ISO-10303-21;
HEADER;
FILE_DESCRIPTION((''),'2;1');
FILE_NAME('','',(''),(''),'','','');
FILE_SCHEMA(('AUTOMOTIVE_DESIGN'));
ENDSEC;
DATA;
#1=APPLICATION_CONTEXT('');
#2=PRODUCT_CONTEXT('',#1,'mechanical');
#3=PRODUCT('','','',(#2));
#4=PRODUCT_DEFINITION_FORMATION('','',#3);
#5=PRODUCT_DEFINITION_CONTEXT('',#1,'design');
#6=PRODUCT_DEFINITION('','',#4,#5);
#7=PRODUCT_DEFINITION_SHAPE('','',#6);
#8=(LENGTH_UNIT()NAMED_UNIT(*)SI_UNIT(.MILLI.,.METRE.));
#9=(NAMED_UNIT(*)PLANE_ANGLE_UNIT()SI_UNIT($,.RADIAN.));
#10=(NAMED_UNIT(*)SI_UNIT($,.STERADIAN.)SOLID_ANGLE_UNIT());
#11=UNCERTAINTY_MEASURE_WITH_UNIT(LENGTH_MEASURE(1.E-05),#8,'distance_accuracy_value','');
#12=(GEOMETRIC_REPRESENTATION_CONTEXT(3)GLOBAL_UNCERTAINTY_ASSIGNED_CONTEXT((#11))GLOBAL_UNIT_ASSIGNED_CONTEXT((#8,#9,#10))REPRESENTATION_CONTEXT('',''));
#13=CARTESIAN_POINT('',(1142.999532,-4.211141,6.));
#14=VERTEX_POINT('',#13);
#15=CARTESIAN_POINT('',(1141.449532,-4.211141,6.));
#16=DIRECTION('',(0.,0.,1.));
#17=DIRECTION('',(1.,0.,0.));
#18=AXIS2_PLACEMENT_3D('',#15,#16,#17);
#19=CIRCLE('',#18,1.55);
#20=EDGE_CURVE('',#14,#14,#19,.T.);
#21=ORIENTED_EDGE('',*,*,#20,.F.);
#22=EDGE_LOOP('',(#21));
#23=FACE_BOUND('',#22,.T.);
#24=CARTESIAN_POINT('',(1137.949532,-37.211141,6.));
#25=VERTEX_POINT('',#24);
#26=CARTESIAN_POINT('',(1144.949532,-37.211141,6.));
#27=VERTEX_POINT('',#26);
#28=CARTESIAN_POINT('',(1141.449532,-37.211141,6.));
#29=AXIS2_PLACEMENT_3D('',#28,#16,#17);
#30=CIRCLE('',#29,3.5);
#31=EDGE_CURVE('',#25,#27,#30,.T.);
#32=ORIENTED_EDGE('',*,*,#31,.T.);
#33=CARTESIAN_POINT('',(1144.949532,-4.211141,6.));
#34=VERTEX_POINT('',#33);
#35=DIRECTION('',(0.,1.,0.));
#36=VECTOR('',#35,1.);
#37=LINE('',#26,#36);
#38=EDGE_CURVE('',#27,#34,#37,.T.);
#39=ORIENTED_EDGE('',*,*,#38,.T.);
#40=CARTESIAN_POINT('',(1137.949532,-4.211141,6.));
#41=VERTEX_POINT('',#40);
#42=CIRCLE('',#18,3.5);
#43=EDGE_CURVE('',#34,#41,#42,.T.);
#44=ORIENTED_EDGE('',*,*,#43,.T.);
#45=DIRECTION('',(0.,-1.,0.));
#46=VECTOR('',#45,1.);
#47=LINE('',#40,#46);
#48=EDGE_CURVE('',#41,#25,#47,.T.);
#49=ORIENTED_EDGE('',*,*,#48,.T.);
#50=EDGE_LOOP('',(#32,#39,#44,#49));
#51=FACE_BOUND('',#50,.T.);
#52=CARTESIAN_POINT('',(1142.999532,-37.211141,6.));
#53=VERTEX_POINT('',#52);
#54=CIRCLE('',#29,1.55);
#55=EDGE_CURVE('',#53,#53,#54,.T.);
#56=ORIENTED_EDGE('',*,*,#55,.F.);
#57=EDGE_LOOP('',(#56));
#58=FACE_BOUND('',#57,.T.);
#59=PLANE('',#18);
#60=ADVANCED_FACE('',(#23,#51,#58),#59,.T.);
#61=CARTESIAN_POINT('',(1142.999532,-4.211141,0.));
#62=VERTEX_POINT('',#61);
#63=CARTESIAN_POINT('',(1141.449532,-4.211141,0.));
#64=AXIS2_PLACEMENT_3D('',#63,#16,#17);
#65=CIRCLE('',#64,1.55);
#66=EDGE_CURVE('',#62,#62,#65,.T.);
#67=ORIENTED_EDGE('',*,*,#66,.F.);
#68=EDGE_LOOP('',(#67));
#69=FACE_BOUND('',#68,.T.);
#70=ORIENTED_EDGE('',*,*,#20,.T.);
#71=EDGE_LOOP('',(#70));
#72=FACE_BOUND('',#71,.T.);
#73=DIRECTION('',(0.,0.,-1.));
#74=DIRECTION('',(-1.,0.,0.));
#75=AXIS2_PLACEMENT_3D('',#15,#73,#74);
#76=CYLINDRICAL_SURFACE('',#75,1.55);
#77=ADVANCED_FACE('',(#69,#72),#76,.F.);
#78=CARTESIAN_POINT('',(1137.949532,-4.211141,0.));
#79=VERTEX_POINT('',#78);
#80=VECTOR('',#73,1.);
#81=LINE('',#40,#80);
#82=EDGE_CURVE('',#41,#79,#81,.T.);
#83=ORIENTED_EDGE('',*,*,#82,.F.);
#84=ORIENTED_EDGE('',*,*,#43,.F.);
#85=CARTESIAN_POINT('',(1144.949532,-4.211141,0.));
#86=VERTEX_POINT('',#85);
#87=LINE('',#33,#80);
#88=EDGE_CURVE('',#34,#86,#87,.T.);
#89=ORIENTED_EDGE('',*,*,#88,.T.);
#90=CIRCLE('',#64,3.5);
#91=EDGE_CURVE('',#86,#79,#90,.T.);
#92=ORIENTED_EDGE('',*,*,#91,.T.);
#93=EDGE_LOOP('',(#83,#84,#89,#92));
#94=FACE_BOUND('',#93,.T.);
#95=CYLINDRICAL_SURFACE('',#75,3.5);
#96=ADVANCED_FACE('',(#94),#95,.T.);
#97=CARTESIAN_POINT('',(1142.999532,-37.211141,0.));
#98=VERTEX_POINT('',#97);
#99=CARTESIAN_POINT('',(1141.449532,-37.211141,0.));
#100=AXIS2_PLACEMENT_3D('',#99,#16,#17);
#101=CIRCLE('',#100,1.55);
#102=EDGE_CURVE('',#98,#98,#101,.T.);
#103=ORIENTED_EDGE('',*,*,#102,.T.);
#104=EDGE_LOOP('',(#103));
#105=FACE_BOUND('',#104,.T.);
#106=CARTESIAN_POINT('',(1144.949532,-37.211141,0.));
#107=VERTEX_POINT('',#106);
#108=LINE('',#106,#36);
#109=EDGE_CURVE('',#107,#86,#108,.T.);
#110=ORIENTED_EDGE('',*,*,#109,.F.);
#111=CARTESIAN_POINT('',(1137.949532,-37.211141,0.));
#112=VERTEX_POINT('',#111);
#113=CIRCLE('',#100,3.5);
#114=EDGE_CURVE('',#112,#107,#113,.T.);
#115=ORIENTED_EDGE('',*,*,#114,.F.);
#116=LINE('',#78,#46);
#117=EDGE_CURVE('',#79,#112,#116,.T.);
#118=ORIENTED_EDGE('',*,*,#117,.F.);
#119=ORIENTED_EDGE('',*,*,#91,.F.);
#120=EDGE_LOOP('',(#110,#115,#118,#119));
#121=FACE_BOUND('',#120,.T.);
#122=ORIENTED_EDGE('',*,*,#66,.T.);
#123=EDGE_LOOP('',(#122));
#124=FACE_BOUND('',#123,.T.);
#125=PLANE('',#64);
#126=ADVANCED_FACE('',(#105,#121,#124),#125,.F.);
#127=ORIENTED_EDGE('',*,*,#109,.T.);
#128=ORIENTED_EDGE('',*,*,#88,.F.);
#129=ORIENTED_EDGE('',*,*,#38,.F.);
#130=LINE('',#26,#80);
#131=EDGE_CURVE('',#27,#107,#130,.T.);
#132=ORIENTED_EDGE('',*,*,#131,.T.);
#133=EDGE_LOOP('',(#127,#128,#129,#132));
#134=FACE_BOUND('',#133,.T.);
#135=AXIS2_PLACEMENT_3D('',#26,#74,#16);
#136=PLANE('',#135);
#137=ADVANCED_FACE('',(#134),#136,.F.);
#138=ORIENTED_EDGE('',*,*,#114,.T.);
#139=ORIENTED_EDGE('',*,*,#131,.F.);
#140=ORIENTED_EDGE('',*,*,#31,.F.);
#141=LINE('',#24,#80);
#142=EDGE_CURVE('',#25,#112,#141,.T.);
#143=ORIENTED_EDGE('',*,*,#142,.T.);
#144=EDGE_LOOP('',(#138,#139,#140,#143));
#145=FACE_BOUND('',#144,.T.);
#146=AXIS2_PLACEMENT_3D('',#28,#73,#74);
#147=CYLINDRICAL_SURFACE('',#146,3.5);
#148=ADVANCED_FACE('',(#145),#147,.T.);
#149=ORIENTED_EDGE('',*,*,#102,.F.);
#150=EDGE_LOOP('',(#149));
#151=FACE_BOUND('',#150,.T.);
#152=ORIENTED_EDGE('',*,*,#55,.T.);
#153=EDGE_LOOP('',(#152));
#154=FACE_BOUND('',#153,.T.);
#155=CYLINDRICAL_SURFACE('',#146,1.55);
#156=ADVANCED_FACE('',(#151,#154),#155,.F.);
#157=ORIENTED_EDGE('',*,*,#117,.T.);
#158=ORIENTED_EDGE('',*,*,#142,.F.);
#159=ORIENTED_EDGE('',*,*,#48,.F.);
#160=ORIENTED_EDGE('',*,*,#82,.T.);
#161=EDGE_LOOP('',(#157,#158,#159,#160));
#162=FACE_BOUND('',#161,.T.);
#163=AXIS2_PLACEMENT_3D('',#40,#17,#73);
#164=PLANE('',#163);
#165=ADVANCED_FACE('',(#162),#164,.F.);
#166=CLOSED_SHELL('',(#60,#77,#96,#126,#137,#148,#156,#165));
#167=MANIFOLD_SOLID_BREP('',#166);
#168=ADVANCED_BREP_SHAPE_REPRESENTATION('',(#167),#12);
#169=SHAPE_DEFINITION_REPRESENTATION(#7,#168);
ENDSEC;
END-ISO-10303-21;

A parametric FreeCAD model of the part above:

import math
import FreeCAD as App
import Part
import Sketcher

V = App.Vector

doc = App.newDocument("Part")
body = doc.addObject("PartDesign::Body", "Body")

# Sketch on XY plane
sketch1 = doc.addObject("Sketcher::SketchObject", "Sketch")
body.addObject(sketch1)
sketch1.AttachmentSupport = (doc.XY_Plane, [""])
sketch1.MapMode = "FlatFace"
sketch1.addGeometry([
    Part.LineSegment(V(1144.9, -37.2, 0), V(1144.9, -4.2, 0)),  # 0
    Part.ArcOfCircle(Part.Circle(V(1141.4, -4.2, 0), V(0, 0, 1), 3.5), math.radians(0), math.radians(180)),  # 1
    Part.LineSegment(V(1137.9, -4.2, 0), V(1137.9, -37.2, 0)),  # 2
    Part.ArcOfCircle(Part.Circle(V(1141.4, -37.2, 0), V(0, 0, 1), 3.5), math.radians(180), math.radians(360)),  # 3
    Part.Circle(V(1141.4, -37.2, 0), V(0, 0, 1), 1.6),  # 4
    Part.Circle(V(1141.4, -4.2, 0), V(0, 0, 1), 1.6),  # 5
], False)
sketch1.addConstraint([
    Sketcher.Constraint("Tangent", 0, 2, 1, 1),
    Sketcher.Constraint("Tangent", 1, 2, 2, 1),
    Sketcher.Constraint("Tangent", 2, 2, 3, 1),
    Sketcher.Constraint("Tangent", 3, 2, 0, 1),
    Sketcher.Constraint("Vertical", 0),
    Sketcher.Constraint("Vertical", 2),
    Sketcher.Constraint("Coincident", 4, 3, 3, 3),
    Sketcher.Constraint("Coincident", 5, 3, 1, 3),
    Sketcher.Constraint("Equal", 4, 5),
    Sketcher.Constraint("Diameter", 4, 3.1),
    Sketcher.Constraint("Radius", 1, 3.5),
    Sketcher.Constraint("DistanceY", 0, 1, 0, 2, 33.0),
    Sketcher.Constraint("DistanceX", -1, 1, 1, 3, 1141.449532),
    Sketcher.Constraint("DistanceY", 1, 3, -1, 1, 4.211141),
])
pad1 = doc.addObject("PartDesign::Pad", "Pad")
body.addObject(pad1)
pad1.Profile = sketch1
pad1.Length = 6

doc.recompute()
